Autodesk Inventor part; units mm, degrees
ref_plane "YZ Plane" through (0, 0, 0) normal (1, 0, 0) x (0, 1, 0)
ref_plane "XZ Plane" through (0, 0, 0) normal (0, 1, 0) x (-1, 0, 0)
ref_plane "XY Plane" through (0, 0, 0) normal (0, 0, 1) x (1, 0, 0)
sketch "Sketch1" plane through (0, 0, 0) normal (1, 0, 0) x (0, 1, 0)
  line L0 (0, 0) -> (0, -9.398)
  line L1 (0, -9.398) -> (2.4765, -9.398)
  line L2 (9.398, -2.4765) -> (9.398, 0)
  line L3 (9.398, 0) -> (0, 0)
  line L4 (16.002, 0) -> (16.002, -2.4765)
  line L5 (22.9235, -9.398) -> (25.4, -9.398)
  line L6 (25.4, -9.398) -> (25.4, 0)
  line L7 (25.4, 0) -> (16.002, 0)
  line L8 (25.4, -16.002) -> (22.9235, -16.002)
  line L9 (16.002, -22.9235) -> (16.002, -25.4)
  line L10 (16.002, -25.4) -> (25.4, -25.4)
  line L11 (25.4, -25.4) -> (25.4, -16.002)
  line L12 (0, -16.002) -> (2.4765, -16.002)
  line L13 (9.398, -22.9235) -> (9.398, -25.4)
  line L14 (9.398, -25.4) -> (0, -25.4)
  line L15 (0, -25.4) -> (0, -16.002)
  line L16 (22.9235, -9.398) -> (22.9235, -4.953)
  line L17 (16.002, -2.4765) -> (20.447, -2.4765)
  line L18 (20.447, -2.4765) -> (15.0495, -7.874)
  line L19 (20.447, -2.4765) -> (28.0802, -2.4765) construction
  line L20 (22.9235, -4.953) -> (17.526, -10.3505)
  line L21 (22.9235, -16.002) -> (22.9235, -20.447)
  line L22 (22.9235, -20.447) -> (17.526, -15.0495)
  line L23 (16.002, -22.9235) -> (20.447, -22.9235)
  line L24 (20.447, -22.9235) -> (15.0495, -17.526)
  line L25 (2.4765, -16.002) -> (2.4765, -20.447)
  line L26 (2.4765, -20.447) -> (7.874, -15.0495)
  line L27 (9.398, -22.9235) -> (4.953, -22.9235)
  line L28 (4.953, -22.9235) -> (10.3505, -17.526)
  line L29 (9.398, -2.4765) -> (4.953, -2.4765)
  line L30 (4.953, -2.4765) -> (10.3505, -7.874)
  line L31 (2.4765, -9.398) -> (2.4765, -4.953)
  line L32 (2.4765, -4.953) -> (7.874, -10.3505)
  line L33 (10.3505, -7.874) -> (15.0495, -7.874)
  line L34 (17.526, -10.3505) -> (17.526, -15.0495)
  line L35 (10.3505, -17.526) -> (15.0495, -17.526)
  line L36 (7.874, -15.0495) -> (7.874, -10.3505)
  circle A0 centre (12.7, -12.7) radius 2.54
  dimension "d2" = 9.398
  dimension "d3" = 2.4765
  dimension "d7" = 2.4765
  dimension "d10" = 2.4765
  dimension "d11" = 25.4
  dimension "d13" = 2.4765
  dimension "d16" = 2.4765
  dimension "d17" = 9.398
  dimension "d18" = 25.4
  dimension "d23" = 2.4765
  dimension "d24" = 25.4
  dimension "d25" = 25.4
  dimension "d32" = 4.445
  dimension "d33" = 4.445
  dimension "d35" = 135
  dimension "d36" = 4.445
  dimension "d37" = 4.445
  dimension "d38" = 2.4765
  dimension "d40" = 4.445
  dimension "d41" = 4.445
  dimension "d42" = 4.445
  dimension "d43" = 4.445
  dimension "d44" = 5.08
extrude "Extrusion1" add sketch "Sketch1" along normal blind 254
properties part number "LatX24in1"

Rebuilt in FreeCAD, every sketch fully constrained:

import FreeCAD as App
import Part
import Sketcher

V = App.Vector
Q = App.Units.Quantity

doc = App.newDocument("Part")
body = doc.addObject("PartDesign::Body", "Body")

sketch1 = doc.addObject("Sketcher::SketchObject", "Sketch")
body.addObject(sketch1)
sketch1.AttachmentSupport = (doc.YZ_Plane, [""])
sketch1.MapMode = "FlatFace"
sketch1.addGeometry([
    Part.LineSegment(V(9.4, 0, 0), V(0, 0, 0)),
    Part.LineSegment(V(0, 0, 0), V(0, -9.4, 0)),
    Part.LineSegment(V(0, -9.4, 0), V(2.5, -9.4, 0)),
    Part.LineSegment(V(2.5, -9.4, 0), V(2.5, -5, 0)),
    Part.LineSegment(V(2.5, -5, 0), V(7.9, -10.4, 0)),
    Part.LineSegment(V(7.9, -10.4, 0), V(7.9, -15, 0)),
    Part.LineSegment(V(7.9, -15, 0), V(2.5, -20.4, 0)),
    Part.LineSegment(V(2.5, -20.4, 0), V(2.5, -16, 0)),
    Part.LineSegment(V(2.5, -16, 0), V(0, -16, 0)),
    Part.LineSegment(V(0, -16, 0), V(0, -25.4, 0)),
    Part.LineSegment(V(0, -25.4, 0), V(9.4, -25.4, 0)),
    Part.LineSegment(V(9.4, -25.4, 0), V(9.4, -22.9, 0)),
    Part.LineSegment(V(9.4, -22.9, 0), V(5, -22.9, 0)),
    Part.LineSegment(V(5, -22.9, 0), V(10.4, -17.5, 0)),
    Part.LineSegment(V(10.4, -17.5, 0), V(15, -17.5, 0)),
    Part.LineSegment(V(15, -17.5, 0), V(20.4, -22.9, 0)),
    Part.LineSegment(V(20.4, -22.9, 0), V(16, -22.9, 0)),
    Part.LineSegment(V(16, -22.9, 0), V(16, -25.4, 0)),
    Part.LineSegment(V(16, -25.4, 0), V(25.4, -25.4, 0)),
    Part.LineSegment(V(25.4, -25.4, 0), V(25.4, -16, 0)),
    Part.LineSegment(V(25.4, -16, 0), V(22.9, -16, 0)),
    Part.LineSegment(V(22.9, -16, 0), V(22.9, -20.4, 0)),
    Part.LineSegment(V(22.9, -20.4, 0), V(17.5, -15, 0)),
    Part.LineSegment(V(17.5, -15, 0), V(17.5, -10.4, 0)),
    Part.LineSegment(V(17.5, -10.4, 0), V(22.9, -5, 0)),
    Part.LineSegment(V(22.9, -5, 0), V(22.9, -9.4, 0)),
    Part.LineSegment(V(22.9, -9.4, 0), V(25.4, -9.4, 0)),
    Part.LineSegment(V(25.4, -9.4, 0), V(25.4, 0, 0)),
    Part.LineSegment(V(25.4, 0, 0), V(16, 0, 0)),
    Part.LineSegment(V(16, 0, 0), V(16, -2.5, 0)),
    Part.LineSegment(V(16, -2.5, 0), V(20.4, -2.5, 0)),
    Part.LineSegment(V(20.4, -2.5, 0), V(15, -7.9, 0)),
    Part.LineSegment(V(15, -7.9, 0), V(10.4, -7.9, 0)),
    Part.LineSegment(V(10.4, -7.9, 0), V(5, -2.5, 0)),
    Part.LineSegment(V(5, -2.5, 0), V(9.4, -2.5, 0)),
    Part.LineSegment(V(9.4, -2.5, 0), V(9.4, 0, 0)),
    Part.Circle(V(12.7, -12.7, 0), V(0, 0, 1), 2.5),
], False)
sketch1.addConstraint([
    Sketcher.Constraint("Coincident", 0, 2, 1, 1),
    Sketcher.Constraint("Coincident", 1, 2, 2, 1),
    Sketcher.Constraint("Coincident", 2, 2, 3, 1),
    Sketcher.Constraint("Coincident", 3, 2, 4, 1),
    Sketcher.Constraint("Coincident", 4, 2, 5, 1),
    Sketcher.Constraint("Coincident", 5, 2, 6, 1),
    Sketcher.Constraint("Coincident", 6, 2, 7, 1),
    Sketcher.Constraint("Coincident", 7, 2, 8, 1),
    Sketcher.Constraint("Coincident", 8, 2, 9, 1),
    Sketcher.Constraint("Coincident", 9, 2, 10, 1),
    Sketcher.Constraint("Coincident", 10, 2, 11, 1),
    Sketcher.Constraint("Coincident", 11, 2, 12, 1),
    Sketcher.Constraint("Coincident", 12, 2, 13, 1),
    Sketcher.Constraint("Coincident", 13, 2, 14, 1),
    Sketcher.Constraint("Coincident", 14, 2, 15, 1),
    Sketcher.Constraint("Coincident", 15, 2, 16, 1),
    Sketcher.Constraint("Coincident", 16, 2, 17, 1),
    Sketcher.Constraint("Coincident", 17, 2, 18, 1),
    Sketcher.Constraint("Coincident", 18, 2, 19, 1),
    Sketcher.Constraint("Coincident", 19, 2, 20, 1),
    Sketcher.Constraint("Coincident", 20, 2, 21, 1),
    Sketcher.Constraint("Coincident", 21, 2, 22, 1),
    Sketcher.Constraint("Coincident", 22, 2, 23, 1),
    Sketcher.Constraint("Coincident", 23, 2, 24, 1),
    Sketcher.Constraint("Coincident", 24, 2, 25, 1),
    Sketcher.Constraint("Coincident", 25, 2, 26, 1),
    Sketcher.Constraint("Coincident", 26, 2, 27, 1),
    Sketcher.Constraint("Coincident", 27, 2, 28, 1),
    Sketcher.Constraint("Coincident", 28, 2, 29, 1),
    Sketcher.Constraint("Coincident", 29, 2, 30, 1),
    Sketcher.Constraint("Coincident", 30, 2, 31, 1),
    Sketcher.Constraint("Coincident", 31, 2, 32, 1),
    Sketcher.Constraint("Coincident", 32, 2, 33, 1),
    Sketcher.Constraint("Coincident", 33, 2, 34, 1),
    Sketcher.Constraint("Coincident", 34, 2, 35, 1),
    Sketcher.Constraint("Coincident", 35, 2, 0, 1),
    Sketcher.Constraint("Horizontal", 0),
    Sketcher.Constraint("Vertical", 1),
    Sketcher.Constraint("Horizontal", 2),
    Sketcher.Constraint("Vertical", 3),
    Sketcher.Constraint("Vertical", 5),
    Sketcher.Constraint("Vertical", 7),
    Sketcher.Constraint("Horizontal", 8),
    Sketcher.Constraint("Vertical", 9),
    Sketcher.Constraint("Horizontal", 10),
    Sketcher.Constraint("Vertical", 11),
    Sketcher.Constraint("Horizontal", 12),
    Sketcher.Constraint("Horizontal", 14),
    Sketcher.Constraint("Horizontal", 16),
    Sketcher.Constraint("Vertical", 17),
    Sketcher.Constraint("Horizontal", 18),
    Sketcher.Constraint("Vertical", 19),
    Sketcher.Constraint("Horizontal", 20),
    Sketcher.Constraint("Vertical", 21),
    Sketcher.Constraint("Vertical", 23),
    Sketcher.Constraint("Vertical", 25),
    Sketcher.Constraint("Horizontal", 26),
    Sketcher.Constraint("Vertical", 27),
    Sketcher.Constraint("Horizontal", 28),
    Sketcher.Constraint("Vertical", 29),
    Sketcher.Constraint("Horizontal", 30),
    Sketcher.Constraint("Horizontal", 32),
    Sketcher.Constraint("Horizontal", 34),
    Sketcher.Constraint("Vertical", 35),
    Sketcher.Constraint("Coincident", 0, 2, -1, 1),
    Sketcher.Constraint("PointOnObject", 8, 2, -2),
    Sketcher.Constraint("PointOnObject", 27, 2, -1),
    Sketcher.Constraint("Perpendicular", 4, 6),
    Sketcher.Constraint("Parallel", 6, 13),
    Sketcher.Constraint("Perpendicular", 13, 15),
    Sketcher.Constraint("Parallel", 15, 22),
    Sketcher.Constraint("Perpendicular", 22, 24),
    Sketcher.Constraint("Parallel", 24, 31),
    Sketcher.Constraint("Perpendicular", 31, 33),
    Sketcher.Constraint("Horizontal", 12, 2, 15, 2),
    Sketcher.Constraint("Horizontal", 10, 2, 17, 2),
    Sketcher.Constraint("Horizontal", 8, 2, 19, 2),
    Sketcher.Constraint("Horizontal", 6, 2, 21, 2),
    Sketcher.Constraint("Horizontal", 5, 2, 22, 2),
    Sketcher.Constraint("Horizontal", 4, 2, 23, 2),
    Sketcher.Constraint("Horizontal", 3, 2, 24, 2),
    Sketcher.Constraint("Horizontal", 2, 2, 25, 2),
    Sketcher.Constraint("Horizontal", 30, 2, 33, 2),
    Sketcher.Constraint("Vertical", 3, 2, 6, 2),
    Sketcher.Constraint("Vertical", 21, 2, 24, 2),
    Sketcher.Constraint("Vertical", 19, 2, 26, 2),
    Sketcher.Constraint("Vertical", 17, 2, 28, 2),
    Sketcher.Constraint("Vertical", 15, 2, 30, 2),
    Sketcher.Constraint("Vertical", 14, 2, 31, 2),
    Sketcher.Constraint("Vertical", 13, 2, 32, 2),
    Sketcher.Constraint("Vertical", 11, 2, 34, 2),
    Sketcher.Constraint("Equal", 12, 16),
    Sketcher.Constraint("Equal", 10, 18),
    Sketcher.Constraint("Equal", 8, 20),
    Sketcher.Constraint("Equal", 28, 1),
    Sketcher.Constraint("Equal", 34, 3),
    Sketcher.Constraint("Equal", 32, 5),
    Sketcher.Constraint("Equal", 3, 7),
    Sketcher.Constraint("Equal", 1, 9),
    Sketcher.Constraint("Equal", 26, 11),
    Sketcher.Constraint("Equal", 17, 29),
    Sketcher.Constraint("Equal", 6, 13),
    Sketcher.Constraint("Diameter", 36, Q("0.2 in")),
    Sketcher.Constraint("DistanceY", 9, 2, -1, 1, Q("1 in")),
    Sketcher.Constraint("DistanceX", 0, 2, 0, 1, Q("0.37 in")),
    Sketcher.Constraint("DistanceX", 12, 2, 12, 1, Q("0.175 in")),
    Sketcher.Constraint("DistanceX", 2, 1, 2, 2, Q("0.0975 in")),
    Sketcher.Constraint("DistanceX", -1, 1, 36, 3, Q("0.5 in")),
    Sketcher.Constraint("DistanceY", 36, 3, -1, 1, Q("0.5 in")),
    Sketcher.Constraint("DistanceX", 14, 1, 14, 2, Q("0.185 in")),
])
pad1 = doc.addObject("PartDesign::Pad", "Pad")
body.addObject(pad1)
pad1.Profile = sketch1
pad1.Length = Q("10 in")

doc.recompute()
